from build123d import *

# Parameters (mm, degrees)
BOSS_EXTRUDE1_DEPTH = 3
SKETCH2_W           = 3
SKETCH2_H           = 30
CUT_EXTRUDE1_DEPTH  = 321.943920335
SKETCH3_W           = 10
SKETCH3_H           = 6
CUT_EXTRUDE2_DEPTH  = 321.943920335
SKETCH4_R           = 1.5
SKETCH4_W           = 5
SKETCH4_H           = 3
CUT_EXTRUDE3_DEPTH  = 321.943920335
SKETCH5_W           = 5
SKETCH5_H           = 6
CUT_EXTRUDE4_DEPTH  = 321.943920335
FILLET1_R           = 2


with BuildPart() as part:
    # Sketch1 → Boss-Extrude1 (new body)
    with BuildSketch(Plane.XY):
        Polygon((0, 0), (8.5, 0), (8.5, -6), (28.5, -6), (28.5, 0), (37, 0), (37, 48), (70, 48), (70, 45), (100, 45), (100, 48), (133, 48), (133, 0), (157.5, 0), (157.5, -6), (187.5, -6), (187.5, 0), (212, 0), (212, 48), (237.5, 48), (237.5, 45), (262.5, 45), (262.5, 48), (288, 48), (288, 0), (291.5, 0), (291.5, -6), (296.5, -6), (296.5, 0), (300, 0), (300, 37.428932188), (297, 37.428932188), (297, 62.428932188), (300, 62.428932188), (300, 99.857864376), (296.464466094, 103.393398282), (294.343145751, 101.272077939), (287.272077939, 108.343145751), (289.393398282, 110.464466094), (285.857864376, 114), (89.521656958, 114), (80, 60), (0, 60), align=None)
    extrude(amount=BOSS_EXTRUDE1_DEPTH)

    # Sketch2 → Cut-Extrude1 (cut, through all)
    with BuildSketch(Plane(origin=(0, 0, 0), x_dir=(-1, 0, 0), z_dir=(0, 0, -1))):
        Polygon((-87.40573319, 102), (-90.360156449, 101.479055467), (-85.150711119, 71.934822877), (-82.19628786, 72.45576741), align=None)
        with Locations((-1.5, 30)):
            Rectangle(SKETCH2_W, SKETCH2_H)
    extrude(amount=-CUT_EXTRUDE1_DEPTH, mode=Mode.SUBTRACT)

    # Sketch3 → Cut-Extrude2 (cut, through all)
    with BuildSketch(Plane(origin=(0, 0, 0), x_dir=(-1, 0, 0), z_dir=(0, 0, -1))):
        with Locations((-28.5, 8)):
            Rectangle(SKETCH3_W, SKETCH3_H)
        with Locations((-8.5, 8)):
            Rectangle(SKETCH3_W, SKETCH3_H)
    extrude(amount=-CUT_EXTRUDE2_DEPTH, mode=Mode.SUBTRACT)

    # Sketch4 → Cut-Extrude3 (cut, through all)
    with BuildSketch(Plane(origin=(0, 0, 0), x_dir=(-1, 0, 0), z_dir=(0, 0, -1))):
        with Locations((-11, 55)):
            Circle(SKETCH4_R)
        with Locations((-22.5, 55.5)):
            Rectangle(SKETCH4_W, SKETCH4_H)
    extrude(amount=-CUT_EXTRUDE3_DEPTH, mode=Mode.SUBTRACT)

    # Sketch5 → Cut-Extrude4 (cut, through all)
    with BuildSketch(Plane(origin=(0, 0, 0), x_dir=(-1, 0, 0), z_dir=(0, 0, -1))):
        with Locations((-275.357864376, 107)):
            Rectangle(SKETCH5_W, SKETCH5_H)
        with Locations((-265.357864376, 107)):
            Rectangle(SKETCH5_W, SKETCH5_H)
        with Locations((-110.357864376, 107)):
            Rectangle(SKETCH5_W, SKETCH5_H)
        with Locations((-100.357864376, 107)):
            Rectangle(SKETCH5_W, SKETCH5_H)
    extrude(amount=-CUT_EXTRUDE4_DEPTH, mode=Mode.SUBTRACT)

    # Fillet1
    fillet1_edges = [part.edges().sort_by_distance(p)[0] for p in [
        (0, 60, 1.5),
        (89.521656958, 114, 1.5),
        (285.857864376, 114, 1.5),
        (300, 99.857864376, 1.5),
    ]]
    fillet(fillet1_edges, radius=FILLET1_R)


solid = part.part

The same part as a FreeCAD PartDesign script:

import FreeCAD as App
import Part
import Sketcher
Q = App.Units.Quantity


def edges_at(feature, points):
    """Names of the edges that pass closest to the given points."""
    edges = feature.Shape.Edges
    near = lambda p: min(range(len(edges)), key=lambda i: edges[i].distToShape(Part.Vertex(*p))[0])
    return sorted({f"Edge{near(p) + 1}" for p in points})


def add_polygon(sketch, points):
    """Adds a closed chain of lines whose ends are joined by coincident constraints."""
    first, n = sketch.GeometryCount, len(points)
    for a, b in zip(points, points[1:] + points[:1]):
        sketch.addGeometry(Part.LineSegment(App.Vector(*a, 0), App.Vector(*b, 0)), False)
    for i in range(n):
        sketch.addConstraint(Sketcher.Constraint("Coincident", first + i, 2, first + (i + 1) % n, 1))

doc = App.newDocument("Part")
body = doc.addObject("PartDesign::Body", "Body")

sketch1 = body.newObject("Sketcher::SketchObject", "Sketch")
sketch1.AttachmentSupport = (doc.getObject("XY_Plane"), [""])
sketch1.MapMode = "FlatFace"
add_polygon(sketch1, [(0, 0), (8.5, 0), (8.5, -6), (28.5, -6), (28.5, 0), (37, 0), (37, 48), (70, 48), (70, 45), (100, 45), (100, 48), (133, 48), (133, 0), (157.5, 0), (157.5, -6), (187.5, -6), (187.5, 0), (212, 0), (212, 48), (237.5, 48), (237.5, 45), (262.5, 45), (262.5, 48), (288, 48), (288, 0), (291.5, 0), (291.5, -6), (296.5, -6), (296.5, 0), (300, 0), (300, 37.428932), (297, 37.428932), (297, 62.428932), (300, 62.428932), (300, 99.857864), (296.464466, 103.393398), (294.343146, 101.272078), (287.272078, 108.343146), (289.393398, 110.464466), (285.857864, 114), (89.521657, 114), (80, 60), (0, 60)])
sketch1.addConstraint([
    Sketcher.Constraint("Horizontal", 0),
    Sketcher.Constraint("Vertical", 1),
    Sketcher.Constraint("Horizontal", 2),
    Sketcher.Constraint("Vertical", 3),
    Sketcher.Constraint("Horizontal", 4),
    Sketcher.Constraint("Vertical", 5),
    Sketcher.Constraint("Horizontal", 6),
    Sketcher.Constraint("Vertical", 7),
    Sketcher.Constraint("Horizontal", 8),
    Sketcher.Constraint("Vertical", 9),
    Sketcher.Constraint("Horizontal", 10),
    Sketcher.Constraint("Vertical", 11),
    Sketcher.Constraint("Horizontal", 12),
    Sketcher.Constraint("Vertical", 13),
    Sketcher.Constraint("Horizontal", 14),
    Sketcher.Constraint("Vertical", 15),
    Sketcher.Constraint("Horizontal", 16),
    Sketcher.Constraint("Vertical", 17),
    Sketcher.Constraint("Horizontal", 18),
    Sketcher.Constraint("Vertical", 19),
    Sketcher.Constraint("Horizontal", 20),
    Sketcher.Constraint("Vertical", 21),
    Sketcher.Constraint("Horizontal", 22),
    Sketcher.Constraint("Vertical", 23),
    Sketcher.Constraint("Horizontal", 24),
    Sketcher.Constraint("Vertical", 25),
    Sketcher.Constraint("Horizontal", 26),
    Sketcher.Constraint("Vertical", 27),
    Sketcher.Constraint("Horizontal", 28),
    Sketcher.Constraint("Vertical", 29),
    Sketcher.Constraint("Horizontal", 30),
    Sketcher.Constraint("Vertical", 31),
    Sketcher.Constraint("Horizontal", 32),
    Sketcher.Constraint("Vertical", 33),
    Sketcher.Constraint("Horizontal", 39),
    Sketcher.Constraint("Horizontal", 41),
    Sketcher.Constraint("Vertical", 42),
    Sketcher.Constraint("Coincident", 42, 2, -1, 1),
    Sketcher.Constraint("PointOnObject", 3, 2, -1),
    Sketcher.Constraint("PointOnObject", 11, 2, -1),
    Sketcher.Constraint("PointOnObject", 15, 2, -1),
    Sketcher.Constraint("PointOnObject", 23, 2, -1),
    Sketcher.Constraint("PointOnObject", 27, 2, -1),
    Sketcher.Constraint("Perpendicular", 34, 35),
    Sketcher.Constraint("Perpendicular", 35, 36),
    Sketcher.Constraint("Perpendicular", 36, 37),
    Sketcher.Constraint("Perpendicular", 37, 38),
    Sketcher.Constraint("Horizontal", 6, 2, 9, 2),
    Sketcher.Constraint("Horizontal", 2, 2, 13, 2),
    Sketcher.Constraint("Horizontal", 10, 2, 17, 2),
    Sketcher.Constraint("Horizontal", 8, 2, 19, 2),
    Sketcher.Constraint("Horizontal", 18, 2, 21, 2),
    Sketcher.Constraint("Horizontal", 14, 2, 25, 2),
    Sketcher.Constraint("Vertical", 29, 2, 32, 2),
    Sketcher.Constraint("Equal", 0, 4),
    Sketcher.Constraint("Equal", 6, 10),
    Sketcher.Constraint("Equal", 8, 14),
    Sketcher.Constraint("Equal", 12, 16),
    Sketcher.Constraint("Equal", 18, 22),
    Sketcher.Constraint("Equal", 24, 28),
    Sketcher.Constraint("Equal", 32, 7),
    Sketcher.Constraint("Equal", 20, 31),
    Sketcher.Constraint("Equal", 29, 33),
    Sketcher.Constraint("Equal", 35, 37),
    Sketcher.Constraint("Equal", 34, 38),
    Sketcher.Constraint("DistanceX", 2, 1, 2, 2, 20.0),
    Sketcher.Constraint("DistanceX", 6, 1, 6, 2, 33.0),
    Sketcher.Constraint("DistanceX", 8, 1, 8, 2, 30.0),
    Sketcher.Constraint("DistanceX", 20, 1, 20, 2, 25.0),
    Sketcher.Constraint("DistanceX", 26, 1, 26, 2, 5.0),
    Sketcher.Constraint("DistanceX", 30, 2, 30, 1, 3.0),
    Sketcher.Constraint("DistanceX", 41, 2, 41, 1, 80.0),
    Sketcher.Constraint("DistanceY", 1, 2, 1, 1, 6.0),
    Sketcher.Constraint("DistanceY", 5, 1, 5, 2, 48.0),
    Sketcher.Constraint("DistanceY", 42, 2, 42, 1, 60.0),
    Sketcher.Constraint("Angle", 34, Q("135 deg")),
    Sketcher.Constraint("Angle", 40, Q("-100 deg")),
    Sketcher.Constraint("Distance", 34, 5.0),
    Sketcher.Constraint("Distance", 35, 3.0),
    Sketcher.Constraint("Distance", 36, 10.0),
    Sketcher.Constraint("DistanceX", 0, 1, 0, 2, 8.5),
    Sketcher.Constraint("DistanceX", 12, 1, 12, 2, 24.5),
    Sketcher.Constraint("DistanceX", 18, 1, 18, 2, 25.5),
    Sketcher.Constraint("DistanceX", 24, 1, 24, 2, 3.5),
    Sketcher.Constraint("DistanceY", -1, 1, 38, 2, 114.0),
])
pad1 = body.newObject("PartDesign::Pad", "Pad")
pad1.Profile = sketch1
pad1.Length = 3

sketch2 = body.newObject("Sketcher::SketchObject", "Sketch001")
sketch2.AttachmentSupport = (doc.getObject("XY_Plane"), [""])
sketch2.MapMode = "FlatFace"
add_polygon(sketch2, [(87.405733, 102), (90.360156, 101.479055), (85.150711, 71.934823), (82.196288, 72.455767)])
add_polygon(sketch2, [(3, 45), (3, 15), (0, 15), (0, 45)])
sketch2.addConstraint([
    Sketcher.Constraint("Vertical", 4),
    Sketcher.Constraint("Horizontal", 5),
    Sketcher.Constraint("Vertical", 6),
    Sketcher.Constraint("Horizontal", 7),
    Sketcher.Constraint("PointOnObject", 5, 2, -2),
    Sketcher.Constraint("Perpendicular", 0, 1),
    Sketcher.Constraint("Perpendicular", 1, 2),
    Sketcher.Constraint("Perpendicular", 2, 3),
    Sketcher.Constraint("DistanceX", 5, 2, 5, 1, 3.0),
    Sketcher.Constraint("DistanceY", 4, 2, 4, 1, 30.0),
    Sketcher.Constraint("Angle", 0, Q("-10 deg")),
    Sketcher.Constraint("Distance", 0, 3.0),
    Sketcher.Constraint("Distance", 1, 30.0),
    Sketcher.Constraint("DistanceY", -1, 1, 3, 2, 102.0),
    Sketcher.Constraint("DistanceY", -1, 1, 4, 2, 15.0),
    Sketcher.Constraint("DistanceX", -1, 1, 1, 2, 85.150711),
])
pocket1 = body.newObject("PartDesign::Pocket", "Pocket")
pocket1.Profile = sketch2
pocket1.Type = "ThroughAll"
pocket1.Reversed = True

sketch3 = body.newObject("Sketcher::SketchObject", "Sketch002")
sketch3.AttachmentSupport = (doc.getObject("XY_Plane"), [""])
sketch3.MapMode = "FlatFace"
add_polygon(sketch3, [(33.5, 11), (33.5, 5), (23.5, 5), (23.5, 11)])
add_polygon(sketch3, [(13.5, 11), (13.5, 5), (3.5, 5), (3.5, 11)])
sketch3.addConstraint([
    Sketcher.Constraint("Vertical", 0),
    Sketcher.Constraint("Horizontal", 1),
    Sketcher.Constraint("Vertical", 2),
    Sketcher.Constraint("Horizontal", 3),
    Sketcher.Constraint("Vertical", 4),
    Sketcher.Constraint("Horizontal", 5),
    Sketcher.Constraint("Vertical", 6),
    Sketcher.Constraint("Horizontal", 7),
    Sketcher.Constraint("Horizontal", 1, 2, 4, 2),
    Sketcher.Constraint("Horizontal", 3, 2, 6, 2),
    Sketcher.Constraint("Equal", 3, 5),
    Sketcher.Constraint("DistanceX", 1, 2, 1, 1, 10.0),
    Sketcher.Constraint("DistanceY", 0, 2, 0, 1, 6.0),
    Sketcher.Constraint("DistanceY", -1, 1, 0, 2, 5.0),
    Sketcher.Constraint("DistanceX", 4, 2, 1, 2, 10.0),
    Sketcher.Constraint("DistanceX", -1, 1, 0, 2, 33.5),
])
pocket2 = body.newObject("PartDesign::Pocket", "Pocket001")
pocket2.Profile = sketch3
pocket2.Type = "ThroughAll"
pocket2.Reversed = True

sketch4 = body.newObject("Sketcher::SketchObject", "Sketch003")
sketch4.AttachmentSupport = (doc.getObject("XY_Plane"), [""])
sketch4.MapMode = "FlatFace"
sketch4.addGeometry(Part.Circle(App.Vector(11, 55, 0), App.Vector(0, 0, 1), 1.5), False)
add_polygon(sketch4, [(25, 57), (25, 54), (20, 54), (20, 57)])
sketch4.addConstraint([
    Sketcher.Constraint("Vertical", 1),
    Sketcher.Constraint("Horizontal", 2),
    Sketcher.Constraint("Vertical", 3),
    Sketcher.Constraint("Horizontal", 4),
    Sketcher.Constraint("Diameter", 0, 3.0),
    Sketcher.Constraint("DistanceX", 2, 2, 2, 1, 5.0),
    Sketcher.Constraint("DistanceY", 1, 2, 1, 1, 3.0),
    Sketcher.Constraint("DistanceX", -1, 1, 0, 3, 11.0),
    Sketcher.Constraint("DistanceY", -1, 1, 0, 3, 55.0),
    Sketcher.Constraint("DistanceX", -1, 1, 1, 2, 25.0),
    Sketcher.Constraint("DistanceY", -1, 1, 1, 2, 54.0),
])
pocket3 = body.newObject("PartDesign::Pocket", "Pocket002")
pocket3.Profile = sketch4
pocket3.Type = "ThroughAll"
pocket3.Reversed = True

sketch5 = body.newObject("Sketcher::SketchObject", "Sketch004")
sketch5.AttachmentSupport = (doc.getObject("XY_Plane"), [""])
sketch5.MapMode = "FlatFace"
add_polygon(sketch5, [(277.857864, 110), (277.857864, 104), (272.857864, 104), (272.857864, 110)])
add_polygon(sketch5, [(267.857864, 110), (267.857864, 104), (262.857864, 104), (262.857864, 110)])
add_polygon(sketch5, [(112.857864, 110), (112.857864, 104), (107.857864, 104), (107.857864, 110)])
add_polygon(sketch5, [(102.857864, 110), (102.857864, 104), (97.857864, 104), (97.857864, 110)])
sketch5.addConstraint([
    Sketcher.Constraint("Vertical", 0),
    Sketcher.Constraint("Horizontal", 1),
    Sketcher.Constraint("Vertical", 2),
    Sketcher.Constraint("Horizontal", 3),
    Sketcher.Constraint("Vertical", 4),
    Sketcher.Constraint("Horizontal", 5),
    Sketcher.Constraint("Vertical", 6),
    Sketcher.Constraint("Horizontal", 7),
    Sketcher.Constraint("Vertical", 8),
    Sketcher.Constraint("Horizontal", 9),
    Sketcher.Constraint("Vertical", 10),
    Sketcher.Constraint("Horizontal", 11),
    Sketcher.Constraint("Vertical", 12),
    Sketcher.Constraint("Horizontal", 13),
    Sketcher.Constraint("Vertical", 14),
    Sketcher.Constraint("Horizontal", 15),
    Sketcher.Constraint("Horizontal", 1, 2, 4, 2),
    Sketcher.Constraint("Horizontal", 3, 2, 6, 2),
    Sketcher.Constraint("Horizontal", 5, 2, 8, 2),
    Sketcher.Constraint("Horizontal", 7, 2, 10, 2),
    Sketcher.Constraint("Horizontal", 9, 2, 12, 2),
    Sketcher.Constraint("Horizontal", 11, 2, 14, 2),
    Sketcher.Constraint("Equal", 3, 5),
    Sketcher.Constraint("Equal", 7, 9),
    Sketcher.Constraint("Equal", 11, 13),
    Sketcher.Constraint("DistanceX", 1, 2, 1, 1, 5.0),
    Sketcher.Constraint("DistanceY", 0, 2, 0, 1, 6.0),
    Sketcher.Constraint("DistanceY", -1, 1, 0, 2, 104.0),
    Sketcher.Constraint("DistanceX", 4, 2, 1, 2, 5.0),
    Sketcher.Constraint("DistanceX", 8, 2, 5, 2, 150.0),
    Sketcher.Constraint("DistanceX", 12, 2, 9, 2, 5.0),
    Sketcher.Constraint("DistanceX", -1, 1, 0, 2, 277.857864),
])
pocket4 = body.newObject("PartDesign::Pocket", "Pocket003")
pocket4.Profile = sketch5
pocket4.Type = "ThroughAll"
pocket4.Reversed = True
doc.recompute()

fillet = body.newObject("PartDesign::Fillet", "Fillet")
fillet.Base = (pocket4, edges_at(pocket4, [
    (0, 60, 1.5),
    (89.522, 114, 1.5),
    (285.858, 114, 1.5),
    (300, 99.858, 1.5),
]))
fillet.Radius = 2

doc.recompute()
